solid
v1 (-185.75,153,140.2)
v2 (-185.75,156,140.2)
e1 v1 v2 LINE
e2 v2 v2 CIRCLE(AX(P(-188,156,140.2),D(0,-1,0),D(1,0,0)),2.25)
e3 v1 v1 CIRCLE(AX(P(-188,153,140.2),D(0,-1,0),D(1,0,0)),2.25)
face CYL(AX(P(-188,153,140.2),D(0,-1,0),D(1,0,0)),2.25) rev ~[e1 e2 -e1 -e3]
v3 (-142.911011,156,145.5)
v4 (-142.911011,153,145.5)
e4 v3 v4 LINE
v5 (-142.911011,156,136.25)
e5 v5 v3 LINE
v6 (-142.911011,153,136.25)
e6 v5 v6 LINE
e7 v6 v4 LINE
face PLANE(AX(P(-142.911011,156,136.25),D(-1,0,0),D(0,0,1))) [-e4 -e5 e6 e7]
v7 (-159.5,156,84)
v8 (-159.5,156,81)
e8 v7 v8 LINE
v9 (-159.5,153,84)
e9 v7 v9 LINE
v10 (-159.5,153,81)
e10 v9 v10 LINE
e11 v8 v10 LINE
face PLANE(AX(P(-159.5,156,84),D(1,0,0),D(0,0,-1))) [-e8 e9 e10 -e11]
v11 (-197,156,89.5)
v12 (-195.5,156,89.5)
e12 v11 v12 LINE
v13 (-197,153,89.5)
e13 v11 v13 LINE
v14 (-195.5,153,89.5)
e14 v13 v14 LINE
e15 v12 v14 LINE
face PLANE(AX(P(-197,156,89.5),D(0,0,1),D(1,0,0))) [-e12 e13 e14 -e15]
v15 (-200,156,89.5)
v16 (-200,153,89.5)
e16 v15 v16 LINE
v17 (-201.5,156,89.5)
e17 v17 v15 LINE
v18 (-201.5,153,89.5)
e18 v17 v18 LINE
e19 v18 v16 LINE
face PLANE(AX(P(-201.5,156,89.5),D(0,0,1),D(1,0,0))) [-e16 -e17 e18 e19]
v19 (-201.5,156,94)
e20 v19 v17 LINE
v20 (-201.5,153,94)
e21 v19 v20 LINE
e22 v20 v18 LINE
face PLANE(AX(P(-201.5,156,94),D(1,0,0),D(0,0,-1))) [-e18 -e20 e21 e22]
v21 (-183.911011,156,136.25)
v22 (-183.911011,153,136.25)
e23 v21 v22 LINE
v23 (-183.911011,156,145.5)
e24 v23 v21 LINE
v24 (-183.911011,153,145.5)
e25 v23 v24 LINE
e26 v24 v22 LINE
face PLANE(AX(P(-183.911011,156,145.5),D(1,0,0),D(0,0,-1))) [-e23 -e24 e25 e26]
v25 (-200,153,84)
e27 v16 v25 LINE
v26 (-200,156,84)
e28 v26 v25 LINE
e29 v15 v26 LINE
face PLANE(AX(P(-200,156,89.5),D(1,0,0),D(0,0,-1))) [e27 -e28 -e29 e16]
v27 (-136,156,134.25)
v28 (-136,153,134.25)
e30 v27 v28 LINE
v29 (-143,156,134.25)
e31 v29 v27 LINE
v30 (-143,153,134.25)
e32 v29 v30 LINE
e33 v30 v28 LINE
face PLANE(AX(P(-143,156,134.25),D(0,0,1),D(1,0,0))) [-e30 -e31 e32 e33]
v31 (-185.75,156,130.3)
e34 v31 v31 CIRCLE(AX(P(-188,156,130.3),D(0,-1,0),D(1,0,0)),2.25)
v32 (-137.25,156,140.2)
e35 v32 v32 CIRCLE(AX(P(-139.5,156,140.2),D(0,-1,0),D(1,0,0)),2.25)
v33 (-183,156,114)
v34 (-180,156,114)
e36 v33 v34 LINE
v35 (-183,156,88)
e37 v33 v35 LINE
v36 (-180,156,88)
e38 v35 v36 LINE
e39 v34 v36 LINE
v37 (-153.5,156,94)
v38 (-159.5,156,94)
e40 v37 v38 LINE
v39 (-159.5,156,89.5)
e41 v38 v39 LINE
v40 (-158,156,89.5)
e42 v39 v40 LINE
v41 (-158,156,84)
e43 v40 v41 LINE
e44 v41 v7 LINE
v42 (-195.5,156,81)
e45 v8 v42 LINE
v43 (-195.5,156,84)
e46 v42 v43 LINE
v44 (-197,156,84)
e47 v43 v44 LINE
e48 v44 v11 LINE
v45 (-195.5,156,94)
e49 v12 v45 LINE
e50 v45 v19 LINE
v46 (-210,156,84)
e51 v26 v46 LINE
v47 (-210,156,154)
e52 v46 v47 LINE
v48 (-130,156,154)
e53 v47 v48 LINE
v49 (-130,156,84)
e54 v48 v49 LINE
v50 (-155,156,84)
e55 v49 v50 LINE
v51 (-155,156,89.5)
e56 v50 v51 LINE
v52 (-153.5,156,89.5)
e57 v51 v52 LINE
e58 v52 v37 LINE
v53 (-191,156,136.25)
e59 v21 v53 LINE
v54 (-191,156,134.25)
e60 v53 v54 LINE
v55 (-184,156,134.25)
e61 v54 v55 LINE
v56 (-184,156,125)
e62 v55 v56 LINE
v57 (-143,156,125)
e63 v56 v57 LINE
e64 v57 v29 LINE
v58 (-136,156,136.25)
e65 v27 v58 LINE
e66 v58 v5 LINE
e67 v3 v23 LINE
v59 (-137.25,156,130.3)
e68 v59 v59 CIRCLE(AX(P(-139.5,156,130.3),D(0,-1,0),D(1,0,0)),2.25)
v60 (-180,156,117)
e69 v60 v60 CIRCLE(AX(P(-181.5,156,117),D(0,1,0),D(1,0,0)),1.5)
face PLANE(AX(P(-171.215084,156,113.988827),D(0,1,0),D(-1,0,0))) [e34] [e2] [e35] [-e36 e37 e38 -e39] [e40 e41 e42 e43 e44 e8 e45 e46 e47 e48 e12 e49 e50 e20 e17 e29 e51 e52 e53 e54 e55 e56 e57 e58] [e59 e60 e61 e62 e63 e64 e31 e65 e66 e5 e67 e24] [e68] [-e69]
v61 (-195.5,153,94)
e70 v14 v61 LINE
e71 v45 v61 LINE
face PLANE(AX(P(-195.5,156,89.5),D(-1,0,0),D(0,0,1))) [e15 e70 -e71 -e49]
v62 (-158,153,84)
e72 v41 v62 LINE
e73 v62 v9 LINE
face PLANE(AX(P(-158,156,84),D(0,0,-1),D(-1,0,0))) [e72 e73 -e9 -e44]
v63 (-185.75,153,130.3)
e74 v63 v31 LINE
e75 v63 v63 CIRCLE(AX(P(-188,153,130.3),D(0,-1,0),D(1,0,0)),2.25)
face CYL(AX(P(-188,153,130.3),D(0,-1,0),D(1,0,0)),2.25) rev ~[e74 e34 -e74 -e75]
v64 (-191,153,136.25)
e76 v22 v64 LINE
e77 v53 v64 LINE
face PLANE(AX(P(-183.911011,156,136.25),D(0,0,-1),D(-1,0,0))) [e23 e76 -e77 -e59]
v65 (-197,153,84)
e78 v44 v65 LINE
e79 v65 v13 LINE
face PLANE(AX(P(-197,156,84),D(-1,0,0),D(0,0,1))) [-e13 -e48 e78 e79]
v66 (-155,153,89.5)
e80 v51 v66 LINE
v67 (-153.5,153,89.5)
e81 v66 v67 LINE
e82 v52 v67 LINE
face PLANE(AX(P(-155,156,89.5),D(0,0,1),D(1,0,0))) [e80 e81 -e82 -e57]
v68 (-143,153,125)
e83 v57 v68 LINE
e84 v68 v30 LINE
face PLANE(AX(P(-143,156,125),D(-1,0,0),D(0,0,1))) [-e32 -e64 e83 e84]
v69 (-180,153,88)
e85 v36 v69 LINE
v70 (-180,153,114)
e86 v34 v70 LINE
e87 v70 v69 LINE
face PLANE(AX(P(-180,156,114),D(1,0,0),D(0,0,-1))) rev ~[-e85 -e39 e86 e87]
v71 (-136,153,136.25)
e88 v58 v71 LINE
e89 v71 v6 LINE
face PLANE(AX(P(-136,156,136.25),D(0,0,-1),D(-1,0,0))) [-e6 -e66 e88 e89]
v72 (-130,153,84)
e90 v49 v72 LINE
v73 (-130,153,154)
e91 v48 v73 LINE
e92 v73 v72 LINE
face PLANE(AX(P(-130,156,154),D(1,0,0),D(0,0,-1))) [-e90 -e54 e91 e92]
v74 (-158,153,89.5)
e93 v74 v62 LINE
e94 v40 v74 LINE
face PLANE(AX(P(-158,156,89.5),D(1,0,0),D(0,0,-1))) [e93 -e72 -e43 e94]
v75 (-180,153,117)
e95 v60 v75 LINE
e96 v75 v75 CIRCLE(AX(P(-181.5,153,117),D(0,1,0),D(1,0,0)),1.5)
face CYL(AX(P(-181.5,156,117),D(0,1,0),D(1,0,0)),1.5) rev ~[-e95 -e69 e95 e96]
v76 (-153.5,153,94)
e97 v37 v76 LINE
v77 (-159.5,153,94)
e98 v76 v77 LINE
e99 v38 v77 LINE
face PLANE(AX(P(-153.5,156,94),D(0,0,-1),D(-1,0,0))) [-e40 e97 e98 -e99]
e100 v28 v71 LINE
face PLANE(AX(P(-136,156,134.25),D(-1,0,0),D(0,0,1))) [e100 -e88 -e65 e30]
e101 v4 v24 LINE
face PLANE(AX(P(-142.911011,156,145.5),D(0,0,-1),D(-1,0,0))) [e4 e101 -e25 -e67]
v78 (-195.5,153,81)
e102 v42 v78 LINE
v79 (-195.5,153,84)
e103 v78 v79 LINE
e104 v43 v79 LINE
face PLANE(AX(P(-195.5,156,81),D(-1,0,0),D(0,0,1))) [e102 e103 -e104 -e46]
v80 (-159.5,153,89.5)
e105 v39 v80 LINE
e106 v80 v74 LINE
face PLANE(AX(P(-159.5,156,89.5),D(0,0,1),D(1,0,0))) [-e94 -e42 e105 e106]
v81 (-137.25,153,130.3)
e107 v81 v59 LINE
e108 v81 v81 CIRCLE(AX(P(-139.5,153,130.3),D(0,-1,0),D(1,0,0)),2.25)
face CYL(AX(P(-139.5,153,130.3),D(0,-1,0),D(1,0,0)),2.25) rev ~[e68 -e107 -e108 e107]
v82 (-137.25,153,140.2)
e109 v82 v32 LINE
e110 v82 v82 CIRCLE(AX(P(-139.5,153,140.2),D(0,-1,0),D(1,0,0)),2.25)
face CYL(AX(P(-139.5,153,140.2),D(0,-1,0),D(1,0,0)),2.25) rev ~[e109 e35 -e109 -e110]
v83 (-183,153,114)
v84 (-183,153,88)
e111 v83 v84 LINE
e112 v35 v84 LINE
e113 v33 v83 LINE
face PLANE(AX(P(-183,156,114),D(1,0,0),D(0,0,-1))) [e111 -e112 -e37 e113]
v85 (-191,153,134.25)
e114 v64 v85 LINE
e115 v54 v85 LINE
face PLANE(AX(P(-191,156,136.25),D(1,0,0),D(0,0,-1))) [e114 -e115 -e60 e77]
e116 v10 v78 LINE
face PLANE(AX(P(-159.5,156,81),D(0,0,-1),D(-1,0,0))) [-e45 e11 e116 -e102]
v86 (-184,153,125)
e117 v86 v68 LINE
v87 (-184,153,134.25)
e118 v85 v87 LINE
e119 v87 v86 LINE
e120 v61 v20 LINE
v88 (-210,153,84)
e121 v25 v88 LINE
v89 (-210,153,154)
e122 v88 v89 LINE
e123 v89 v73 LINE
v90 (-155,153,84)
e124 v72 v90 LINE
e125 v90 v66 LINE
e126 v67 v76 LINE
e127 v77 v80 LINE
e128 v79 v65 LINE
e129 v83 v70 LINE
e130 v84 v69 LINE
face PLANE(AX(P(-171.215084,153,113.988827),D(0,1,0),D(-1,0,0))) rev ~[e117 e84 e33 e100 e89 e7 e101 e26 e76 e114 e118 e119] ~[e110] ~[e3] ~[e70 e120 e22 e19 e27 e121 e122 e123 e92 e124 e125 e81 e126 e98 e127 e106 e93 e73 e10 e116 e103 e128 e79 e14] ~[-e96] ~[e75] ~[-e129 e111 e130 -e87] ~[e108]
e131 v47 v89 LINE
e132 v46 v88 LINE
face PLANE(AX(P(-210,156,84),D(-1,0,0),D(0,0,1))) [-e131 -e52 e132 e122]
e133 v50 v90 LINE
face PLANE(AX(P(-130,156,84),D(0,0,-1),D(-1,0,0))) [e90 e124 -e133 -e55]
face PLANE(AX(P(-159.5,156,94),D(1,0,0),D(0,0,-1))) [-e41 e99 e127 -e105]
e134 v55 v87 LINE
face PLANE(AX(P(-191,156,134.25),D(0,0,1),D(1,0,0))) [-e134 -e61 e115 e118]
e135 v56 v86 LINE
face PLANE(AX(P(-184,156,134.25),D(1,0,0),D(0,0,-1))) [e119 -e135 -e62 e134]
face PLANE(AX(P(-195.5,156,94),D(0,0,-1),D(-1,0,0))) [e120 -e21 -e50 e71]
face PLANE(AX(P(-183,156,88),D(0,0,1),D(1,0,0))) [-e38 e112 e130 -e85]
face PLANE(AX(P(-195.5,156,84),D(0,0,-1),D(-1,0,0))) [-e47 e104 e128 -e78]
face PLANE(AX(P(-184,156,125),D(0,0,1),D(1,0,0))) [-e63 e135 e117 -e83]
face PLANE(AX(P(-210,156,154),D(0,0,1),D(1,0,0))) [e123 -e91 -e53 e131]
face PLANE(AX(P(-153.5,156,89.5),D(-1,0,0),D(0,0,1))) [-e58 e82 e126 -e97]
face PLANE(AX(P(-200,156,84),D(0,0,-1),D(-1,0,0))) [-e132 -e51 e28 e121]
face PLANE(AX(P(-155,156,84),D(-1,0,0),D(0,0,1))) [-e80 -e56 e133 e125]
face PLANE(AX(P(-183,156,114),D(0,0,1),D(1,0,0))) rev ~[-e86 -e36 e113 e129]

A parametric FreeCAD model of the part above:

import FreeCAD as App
import Part
import Sketcher
from FreeCAD import Vector
Q = App.Units.Quantity

doc = App.newDocument("Part")
body = doc.addObject("PartDesign::Body", "Body")

# Sketch on XZ plane
sketch1 = body.newObject("Sketcher::SketchObject", "Sketch")
sketch1.AttachmentSupport = (doc.getObject("XZ_Plane"), [""])
sketch1.MapMode = "FlatFace"
sketch1.addGeometry(Part.LineSegment(Vector(-30, 70, 0), Vector(-30, 0, 0)), False)
sketch1.addGeometry(Part.LineSegment(Vector(-30, 0, 0), Vector(-20, 0, 0)), False)
sketch1.addGeometry(Part.LineSegment(Vector(-20, 0, 0), Vector(-20, 5.5, 0)), False)
sketch1.addGeometry(Part.LineSegment(Vector(-20, 5.5, 0), Vector(-21.5, 5.5, 0)), False)
sketch1.addGeometry(Part.LineSegment(Vector(-21.5, 5.5, 0), Vector(-21.5, 10, 0)), False)
sketch1.addGeometry(Part.LineSegment(Vector(-21.5, 10, 0), Vector(-15.5, 10, 0)), False)
sketch1.addGeometry(Part.LineSegment(Vector(-15.5, 10, 0), Vector(-15.5, 5.5, 0)), False)
sketch1.addGeometry(Part.LineSegment(Vector(-15.5, 5.5, 0), Vector(-17, 5.5, 0)), False)
sketch1.addGeometry(Part.LineSegment(Vector(-17, 5.5, 0), Vector(-17, 0, 0)), False)
sketch1.addGeometry(Part.LineSegment(Vector(-17, 0, 0), Vector(-15.5, 0, 0)), False)
sketch1.addGeometry(Part.LineSegment(Vector(-15.5, 0, 0), Vector(-15.5, -3, 0)), False)
sketch1.addGeometry(Part.LineSegment(Vector(-15.5, -3, 0), Vector(20.5, -3, 0)), False)
sketch1.addGeometry(Part.LineSegment(Vector(20.5, -3, 0), Vector(20.5, 0, 0)), False)
sketch1.addGeometry(Part.LineSegment(Vector(20.5, 0, 0), Vector(22, 0, 0)), False)
sketch1.addGeometry(Part.LineSegment(Vector(22, 0, 0), Vector(22, 5.5, 0)), False)
sketch1.addGeometry(Part.LineSegment(Vector(22, 5.5, 0), Vector(20.5, 5.5, 0)), False)
sketch1.addGeometry(Part.LineSegment(Vector(20.5, 5.5, 0), Vector(20.5, 10, 0)), False)
sketch1.addGeometry(Part.LineSegment(Vector(20.5, 10, 0), Vector(26.5, 10, 0)), False)
sketch1.addGeometry(Part.LineSegment(Vector(26.5, 10, 0), Vector(26.5, 5.5, 0)), False)
sketch1.addGeometry(Part.LineSegment(Vector(26.5, 5.5, 0), Vector(25, 5.5, 0)), False)
sketch1.addGeometry(Part.LineSegment(Vector(25, 5.5, 0), Vector(25, 0, 0)), False)
sketch1.addGeometry(Part.LineSegment(Vector(25, 0, 0), Vector(50, 0, 0)), False)
sketch1.addGeometry(Part.LineSegment(Vector(50, 0, 0), Vector(50, 70, 0)), False)
sketch1.addGeometry(Part.LineSegment(Vector(50, 70, 0), Vector(-30, 70, 0)), False)
sketch1.addConstraint(Sketcher.Constraint("Coincident", 0, 2, 1, 1))
sketch1.addConstraint(Sketcher.Constraint("Coincident", 1, 2, 2, 1))
sketch1.addConstraint(Sketcher.Constraint("Coincident", 2, 2, 3, 1))
sketch1.addConstraint(Sketcher.Constraint("Coincident", 3, 2, 4, 1))
sketch1.addConstraint(Sketcher.Constraint("Coincident", 4, 2, 5, 1))
sketch1.addConstraint(Sketcher.Constraint("Coincident", 5, 2, 6, 1))
sketch1.addConstraint(Sketcher.Constraint("Coincident", 6, 2, 7, 1))
sketch1.addConstraint(Sketcher.Constraint("Coincident", 7, 2, 8, 1))
sketch1.addConstraint(Sketcher.Constraint("Coincident", 8, 2, 9, 1))
sketch1.addConstraint(Sketcher.Constraint("Coincident", 9, 2, 10, 1))
sketch1.addConstraint(Sketcher.Constraint("Coincident", 10, 2, 11, 1))
sketch1.addConstraint(Sketcher.Constraint("Coincident", 11, 2, 12, 1))
sketch1.addConstraint(Sketcher.Constraint("Coincident", 12, 2, 13, 1))
sketch1.addConstraint(Sketcher.Constraint("Coincident", 13, 2, 14, 1))
sketch1.addConstraint(Sketcher.Constraint("Coincident", 14, 2, 15, 1))
sketch1.addConstraint(Sketcher.Constraint("Coincident", 15, 2, 16, 1))
sketch1.addConstraint(Sketcher.Constraint("Coincident", 16, 2, 17, 1))
sketch1.addConstraint(Sketcher.Constraint("Coincident", 17, 2, 18, 1))
sketch1.addConstraint(Sketcher.Constraint("Coincident", 18, 2, 19, 1))
sketch1.addConstraint(Sketcher.Constraint("Coincident", 19, 2, 20, 1))
sketch1.addConstraint(Sketcher.Constraint("Coincident", 20, 2, 21, 1))
sketch1.addConstraint(Sketcher.Constraint("Coincident", 21, 2, 22, 1))
sketch1.addConstraint(Sketcher.Constraint("Coincident", 22, 2, 23, 1))
sketch1.addConstraint(Sketcher.Constraint("Coincident", 23, 2, 0, 1))
sketch1.addConstraint(Sketcher.Constraint("Vertical", 0))
sketch1.addConstraint(Sketcher.Constraint("Horizontal", 1))
sketch1.addConstraint(Sketcher.Constraint("Vertical", 2))
sketch1.addConstraint(Sketcher.Constraint("Horizontal", 3))
sketch1.addConstraint(Sketcher.Constraint("Vertical", 4))
sketch1.addConstraint(Sketcher.Constraint("Horizontal", 5))
sketch1.addConstraint(Sketcher.Constraint("Vertical", 6))
sketch1.addConstraint(Sketcher.Constraint("Horizontal", 7))
sketch1.addConstraint(Sketcher.Constraint("Vertical", 8))
sketch1.addConstraint(Sketcher.Constraint("Horizontal", 9))
sketch1.addConstraint(Sketcher.Constraint("Vertical", 10))
sketch1.addConstraint(Sketcher.Constraint("Horizontal", 11))
sketch1.addConstraint(Sketcher.Constraint("Vertical", 12))
sketch1.addConstraint(Sketcher.Constraint("Horizontal", 13))
sketch1.addConstraint(Sketcher.Constraint("Vertical", 14))
sketch1.addConstraint(Sketcher.Constraint("Horizontal", 15))
sketch1.addConstraint(Sketcher.Constraint("Vertical", 16))
sketch1.addConstraint(Sketcher.Constraint("Horizontal", 17))
sketch1.addConstraint(Sketcher.Constraint("Vertical", 18))
sketch1.addConstraint(Sketcher.Constraint("Horizontal", 19))
sketch1.addConstraint(Sketcher.Constraint("Vertical", 20))
sketch1.addConstraint(Sketcher.Constraint("Horizontal", 21))
sketch1.addConstraint(Sketcher.Constraint("Vertical", 22))
sketch1.addConstraint(Sketcher.Constraint("Horizontal", 23))
sketch1.addConstraint(Sketcher.Constraint("PointOnObject", 0, 2, -1))
sketch1.addConstraint(Sketcher.Constraint("PointOnObject", 8, 2, -1))
sketch1.addConstraint(Sketcher.Constraint("PointOnObject", 12, 2, -1))
sketch1.addConstraint(Sketcher.Constraint("PointOnObject", 20, 2, -1))
sketch1.addConstraint(Sketcher.Constraint("Horizontal", 3, 2, 6, 2))
sketch1.addConstraint(Sketcher.Constraint("Horizontal", 7, 2, 14, 2))
sketch1.addConstraint(Sketcher.Constraint("Horizontal", 5, 2, 16, 2))
sketch1.addConstraint(Sketcher.Constraint("Horizontal", 15, 2, 18, 2))
sketch1.addConstraint(Sketcher.Constraint("Vertical", 6, 2, 9, 2))
sketch1.addConstraint(Sketcher.Constraint("Vertical", 12, 2, 15, 2))
sketch1.addConstraint(Sketcher.Constraint("Equal", 3, 7))
sketch1.addConstraint(Sketcher.Constraint("Equal", 9, 13))
sketch1.addConstraint(Sketcher.Constraint("Equal", 5, 17))
sketch1.addConstraint(Sketcher.Constraint("Equal", 15, 19))
sketch1.addConstraint(Sketcher.Constraint("DistanceX", 1, 1, 1, 2, Q("10 mm")))
sketch1.addConstraint(Sketcher.Constraint("DistanceX", 5, 1, 5, 2, Q("6 mm")))
sketch1.addConstraint(Sketcher.Constraint("DistanceX", 11, 1, 11, 2, Q("36 mm")))
sketch1.addConstraint(Sketcher.Constraint("DistanceX", 21, 1, 21, 2, Q("25 mm")))
sketch1.addConstraint(Sketcher.Constraint("DistanceX", 23, 2, 23, 1, Q("80 mm")))
sketch1.addConstraint(Sketcher.Constraint("DistanceY", 0, 2, 0, 1, Q("70 mm")))
sketch1.addConstraint(Sketcher.Constraint("DistanceY", 10, 2, 10, 1, Q("3 mm")))
sketch1.addConstraint(Sketcher.Constraint("DistanceY", 2, 1, 2, 2, Q("5.5 mm")))
sketch1.addConstraint(Sketcher.Constraint("DistanceY", 4, 1, 4, 2, Q("4.5 mm")))
sketch1.addConstraint(Sketcher.Constraint("DistanceX", 0, 2, -1, 1, Q("30 mm")))
pad1 = body.newObject("PartDesign::Pad", "Pad")
pad1.Profile = sketch1
pad1.Length = 3

# Sketch on XZ plane
sketch2 = body.newObject("Sketcher::SketchObject", "Sketch001")
sketch2.AttachmentSupport = (doc.getObject("XZ_Plane"), [""])
sketch2.MapMode = "FlatFace"
sketch2.addGeometry(Part.Circle(Vector(-1.5, 33, 0), Vector(0, 0, 1), 1.5), False)
sketch2.addGeometry(Part.LineSegment(Vector(-3, 4, 0), Vector(-3, 30, 0)), False)
sketch2.addGeometry(Part.LineSegment(Vector(-3, 30, 0), Vector(0, 30, 0)), False)
sketch2.addGeometry(Part.LineSegment(Vector(0, 30, 0), Vector(0, 4, 0)), False)
sketch2.addGeometry(Part.LineSegment(Vector(0, 4, 0), Vector(-3, 4, 0)), False)
sketch2.addConstraint(Sketcher.Constraint("Coincident", 1, 2, 2, 1))
sketch2.addConstraint(Sketcher.Constraint("Coincident", 2, 2, 3, 1))
sketch2.addConstraint(Sketcher.Constraint("Coincident", 3, 2, 4, 1))
sketch2.addConstraint(Sketcher.Constraint("Coincident", 4, 2, 1, 1))
sketch2.addConstraint(Sketcher.Constraint("Vertical", 1))
sketch2.addConstraint(Sketcher.Constraint("Horizontal", 2))
sketch2.addConstraint(Sketcher.Constraint("Vertical", 3))
sketch2.addConstraint(Sketcher.Constraint("Horizontal", 4))
sketch2.addConstraint(Sketcher.Constraint("PointOnObject", 2, 2, -2))
sketch2.addConstraint(Sketcher.Constraint("Diameter", 0, Q("3 mm")))
sketch2.addConstraint(Sketcher.Constraint("DistanceX", 2, 1, 2, 2, Q("3 mm")))
sketch2.addConstraint(Sketcher.Constraint("DistanceY", 1, 1, 1, 2, Q("26 mm")))
sketch2.addConstraint(Sketcher.Constraint("DistanceY", -1, 1, 0, 3, Q("33 mm")))
sketch2.addConstraint(Sketcher.Constraint("DistanceY", -1, 1, 1, 2, Q("30 mm")))
sketch2.addConstraint(Sketcher.Constraint("DistanceX", 0, 3, -1, 1, Q("1.5 mm")))
pocket1 = body.newObject("PartDesign::Pocket", "Pocket")
pocket1.Profile = sketch2
pocket1.Type = "ThroughAll"
pocket1.Reversed = True

# Sketch on XZ plane
sketch3 = body.newObject("Sketcher::SketchObject", "Sketch002")
sketch3.AttachmentSupport = (doc.getObject("XZ_Plane"), [""])
sketch3.MapMode = "FlatFace"
sketch3.addGeometry(Part.LineSegment(Vector(37, 41, 0), Vector(-4, 41, 0)), False)
sketch3.addGeometry(Part.LineSegment(Vector(-4, 41, 0), Vector(-4, 50.2, 0)), False)
sketch3.addGeometry(Part.LineSegment(Vector(-4, 50.2, 0), Vector(-11, 50.2, 0)), False)
sketch3.addGeometry(Part.LineSegment(Vector(-11, 50.2, 0), Vector(-11, 52.2, 0)), False)
sketch3.addGeometry(Part.LineSegment(Vector(-11, 52.2, 0), Vector(-3.9, 52.2, 0)), False)
sketch3.addGeometry(Part.LineSegment(Vector(-3.9, 52.2, 0), Vector(-3.9, 61.5, 0)), False)
sketch3.addGeometry(Part.LineSegment(Vector(-3.9, 61.5, 0), Vector(37.1, 61.5, 0)), False)
sketch3.addGeometry(Part.LineSegment(Vector(37.1, 61.5, 0), Vector(37.1, 52.2, 0)), False)
sketch3.addGeometry(Part.LineSegment(Vector(37.1, 52.2, 0), Vector(44, 52.2, 0)), False)
sketch3.addGeometry(Part.LineSegment(Vector(44, 52.2, 0), Vector(44, 50.2, 0)), False)
sketch3.addGeometry(Part.LineSegment(Vector(44, 50.2, 0), Vector(37, 50.2, 0)), False)
sketch3.addGeometry(Part.LineSegment(Vector(37, 50.2, 0), Vector(37, 41, 0)), False)
sketch3.addConstraint(Sketcher.Constraint("Coincident", 0, 2, 1, 1))
sketch3.addConstraint(Sketcher.Constraint("Coincident", 1, 2, 2, 1))
sketch3.addConstraint(Sketcher.Constraint("Coincident", 2, 2, 3, 1))
sketch3.addConstraint(Sketcher.Constraint("Coincident", 3, 2, 4, 1))
sketch3.addConstraint(Sketcher.Constraint("Coincident", 4, 2, 5, 1))
sketch3.addConstraint(Sketcher.Constraint("Coincident", 5, 2, 6, 1))
sketch3.addConstraint(Sketcher.Constraint("Coincident", 6, 2, 7, 1))
sketch3.addConstraint(Sketcher.Constraint("Coincident", 7, 2, 8, 1))
sketch3.addConstraint(Sketcher.Constraint("Coincident", 8, 2, 9, 1))
sketch3.addConstraint(Sketcher.Constraint("Coincident", 9, 2, 10, 1))
sketch3.addConstraint(Sketcher.Constraint("Coincident", 10, 2, 11, 1))
sketch3.addConstraint(Sketcher.Constraint("Coincident", 11, 2, 0, 1))
sketch3.addConstraint(Sketcher.Constraint("Horizontal", 0))
sketch3.addConstraint(Sketcher.Constraint("Vertical", 1))
sketch3.addConstraint(Sketcher.Constraint("Horizontal", 2))
sketch3.addConstraint(Sketcher.Constraint("Vertical", 3))
sketch3.addConstraint(Sketcher.Constraint("Horizontal", 4))
sketch3.addConstraint(Sketcher.Constraint("Vertical", 5))
sketch3.addConstraint(Sketcher.Constraint("Horizontal", 6))
sketch3.addConstraint(Sketcher.Constraint("Vertical", 7))
sketch3.addConstraint(Sketcher.Constraint("Horizontal", 8))
sketch3.addConstraint(Sketcher.Constraint("Vertical", 9))
sketch3.addConstraint(Sketcher.Constraint("Horizontal", 10))
sketch3.addConstraint(Sketcher.Constraint("Vertical", 11))
sketch3.addConstraint(Sketcher.Constraint("Horizontal", 4, 2, 7, 2))
sketch3.addConstraint(Sketcher.Constraint("Horizontal", 2, 2, 9, 2))
sketch3.addConstraint(Sketcher.Constraint("Equal", 0, 6))
sketch3.addConstraint(Sketcher.Constraint("Equal", 2, 10))
sketch3.addConstraint(Sketcher.Constraint("Equal", 1, 5))
sketch3.addConstraint(Sketcher.Constraint("DistanceX", 0, 2, 0, 1, Q("41 mm")))
sketch3.addConstraint(Sketcher.Constraint("DistanceX", 2, 2, 2, 1, Q("7 mm")))
sketch3.addConstraint(Sketcher.Constraint("DistanceY", 3, 1, 3, 2, Q("2 mm")))
sketch3.addConstraint(Sketcher.Constraint("DistanceX", 0, 2, -1, 1, Q("4 mm")))
sketch3.addConstraint(Sketcher.Constraint("DistanceY", -1, 1, 0, 2, Q("41 mm")))
sketch3.addConstraint(Sketcher.Constraint("DistanceY", 1, 1, 1, 2, Q("9.25 mm")))
sketch3.addConstraint(Sketcher.Constraint("DistanceX", 4, 1, 4, 2, Q("7.088989 mm")))
pocket2 = body.newObject("PartDesign::Pocket", "Pocket001")
pocket2.Profile = sketch3
pocket2.Type = "ThroughAll"
pocket2.Reversed = True

# Sketch on XZ plane
sketch4 = body.newObject("Sketcher::SketchObject", "Sketch003")
sketch4.AttachmentSupport = (doc.getObject("XZ_Plane"), [""])
sketch4.MapMode = "FlatFace"
sketch4.AttachmentOffset = App.Placement(Vector(0, 0, 3), App.Rotation())
sketch4.addGeometry(Part.Circle(Vector(-8, 56.2, 0), Vector(0, 0, 1), 2.2), False)
sketch4.addGeometry(Part.Circle(Vector(-8, 46.3, 0), Vector(0, 0, 1), 2.2), False)
sketch4.addGeometry(Part.Circle(Vector(40.5, 56.2, 0), Vector(0, 0, 1), 2.2), False)
sketch4.addGeometry(Part.Circle(Vector(40.5, 46.3, 0), Vector(0, 0, 1), 2.2), False)
sketch4.addConstraint(Sketcher.Constraint("Equal", 0, 1))
sketch4.addConstraint(Sketcher.Constraint("Equal", 1, 2))
sketch4.addConstraint(Sketcher.Constraint("Equal", 2, 3))
sketch4.addConstraint(Sketcher.Constraint("Horizontal", 0, 3, 2, 3))
sketch4.addConstraint(Sketcher.Constraint("Horizontal", 1, 3, 3, 3))
sketch4.addConstraint(Sketcher.Constraint("Vertical", 0, 3, 1, 3))
sketch4.addConstraint(Sketcher.Constraint("Vertical", 2, 3, 3, 3))
sketch4.addConstraint(Sketcher.Constraint("Diameter", 0, Q("4.5 mm")))
sketch4.addConstraint(Sketcher.Constraint("DistanceX", 0, 3, -1, 1, Q("8 mm")))
sketch4.addConstraint(Sketcher.Constraint("DistanceY", -1, 1, 0, 3, Q("56.2 mm")))
sketch4.addConstraint(Sketcher.Constraint("DistanceY", -1, 1, 1, 3, Q("46.3 mm")))
sketch4.addConstraint(Sketcher.Constraint("DistanceX", -1, 1, 2, 3, Q("40.5 mm")))
pocket3 = body.newObject("PartDesign::Pocket", "Pocket002")
pocket3.Profile = sketch4
pocket3.Type = "ThroughAll"
body2 = doc.addObject("PartDesign::Body", "Body001")
doc.recompute()

body.Placement = App.Placement(Vector(-180, 156, 84), App.Rotation(Vector(0, 0, 1), 0))
boolean = body2.newObject("PartDesign::Boolean", "Boolean")
boolean.Type = "Fuse"
boolean.addObjects([body])

doc.recompute()
